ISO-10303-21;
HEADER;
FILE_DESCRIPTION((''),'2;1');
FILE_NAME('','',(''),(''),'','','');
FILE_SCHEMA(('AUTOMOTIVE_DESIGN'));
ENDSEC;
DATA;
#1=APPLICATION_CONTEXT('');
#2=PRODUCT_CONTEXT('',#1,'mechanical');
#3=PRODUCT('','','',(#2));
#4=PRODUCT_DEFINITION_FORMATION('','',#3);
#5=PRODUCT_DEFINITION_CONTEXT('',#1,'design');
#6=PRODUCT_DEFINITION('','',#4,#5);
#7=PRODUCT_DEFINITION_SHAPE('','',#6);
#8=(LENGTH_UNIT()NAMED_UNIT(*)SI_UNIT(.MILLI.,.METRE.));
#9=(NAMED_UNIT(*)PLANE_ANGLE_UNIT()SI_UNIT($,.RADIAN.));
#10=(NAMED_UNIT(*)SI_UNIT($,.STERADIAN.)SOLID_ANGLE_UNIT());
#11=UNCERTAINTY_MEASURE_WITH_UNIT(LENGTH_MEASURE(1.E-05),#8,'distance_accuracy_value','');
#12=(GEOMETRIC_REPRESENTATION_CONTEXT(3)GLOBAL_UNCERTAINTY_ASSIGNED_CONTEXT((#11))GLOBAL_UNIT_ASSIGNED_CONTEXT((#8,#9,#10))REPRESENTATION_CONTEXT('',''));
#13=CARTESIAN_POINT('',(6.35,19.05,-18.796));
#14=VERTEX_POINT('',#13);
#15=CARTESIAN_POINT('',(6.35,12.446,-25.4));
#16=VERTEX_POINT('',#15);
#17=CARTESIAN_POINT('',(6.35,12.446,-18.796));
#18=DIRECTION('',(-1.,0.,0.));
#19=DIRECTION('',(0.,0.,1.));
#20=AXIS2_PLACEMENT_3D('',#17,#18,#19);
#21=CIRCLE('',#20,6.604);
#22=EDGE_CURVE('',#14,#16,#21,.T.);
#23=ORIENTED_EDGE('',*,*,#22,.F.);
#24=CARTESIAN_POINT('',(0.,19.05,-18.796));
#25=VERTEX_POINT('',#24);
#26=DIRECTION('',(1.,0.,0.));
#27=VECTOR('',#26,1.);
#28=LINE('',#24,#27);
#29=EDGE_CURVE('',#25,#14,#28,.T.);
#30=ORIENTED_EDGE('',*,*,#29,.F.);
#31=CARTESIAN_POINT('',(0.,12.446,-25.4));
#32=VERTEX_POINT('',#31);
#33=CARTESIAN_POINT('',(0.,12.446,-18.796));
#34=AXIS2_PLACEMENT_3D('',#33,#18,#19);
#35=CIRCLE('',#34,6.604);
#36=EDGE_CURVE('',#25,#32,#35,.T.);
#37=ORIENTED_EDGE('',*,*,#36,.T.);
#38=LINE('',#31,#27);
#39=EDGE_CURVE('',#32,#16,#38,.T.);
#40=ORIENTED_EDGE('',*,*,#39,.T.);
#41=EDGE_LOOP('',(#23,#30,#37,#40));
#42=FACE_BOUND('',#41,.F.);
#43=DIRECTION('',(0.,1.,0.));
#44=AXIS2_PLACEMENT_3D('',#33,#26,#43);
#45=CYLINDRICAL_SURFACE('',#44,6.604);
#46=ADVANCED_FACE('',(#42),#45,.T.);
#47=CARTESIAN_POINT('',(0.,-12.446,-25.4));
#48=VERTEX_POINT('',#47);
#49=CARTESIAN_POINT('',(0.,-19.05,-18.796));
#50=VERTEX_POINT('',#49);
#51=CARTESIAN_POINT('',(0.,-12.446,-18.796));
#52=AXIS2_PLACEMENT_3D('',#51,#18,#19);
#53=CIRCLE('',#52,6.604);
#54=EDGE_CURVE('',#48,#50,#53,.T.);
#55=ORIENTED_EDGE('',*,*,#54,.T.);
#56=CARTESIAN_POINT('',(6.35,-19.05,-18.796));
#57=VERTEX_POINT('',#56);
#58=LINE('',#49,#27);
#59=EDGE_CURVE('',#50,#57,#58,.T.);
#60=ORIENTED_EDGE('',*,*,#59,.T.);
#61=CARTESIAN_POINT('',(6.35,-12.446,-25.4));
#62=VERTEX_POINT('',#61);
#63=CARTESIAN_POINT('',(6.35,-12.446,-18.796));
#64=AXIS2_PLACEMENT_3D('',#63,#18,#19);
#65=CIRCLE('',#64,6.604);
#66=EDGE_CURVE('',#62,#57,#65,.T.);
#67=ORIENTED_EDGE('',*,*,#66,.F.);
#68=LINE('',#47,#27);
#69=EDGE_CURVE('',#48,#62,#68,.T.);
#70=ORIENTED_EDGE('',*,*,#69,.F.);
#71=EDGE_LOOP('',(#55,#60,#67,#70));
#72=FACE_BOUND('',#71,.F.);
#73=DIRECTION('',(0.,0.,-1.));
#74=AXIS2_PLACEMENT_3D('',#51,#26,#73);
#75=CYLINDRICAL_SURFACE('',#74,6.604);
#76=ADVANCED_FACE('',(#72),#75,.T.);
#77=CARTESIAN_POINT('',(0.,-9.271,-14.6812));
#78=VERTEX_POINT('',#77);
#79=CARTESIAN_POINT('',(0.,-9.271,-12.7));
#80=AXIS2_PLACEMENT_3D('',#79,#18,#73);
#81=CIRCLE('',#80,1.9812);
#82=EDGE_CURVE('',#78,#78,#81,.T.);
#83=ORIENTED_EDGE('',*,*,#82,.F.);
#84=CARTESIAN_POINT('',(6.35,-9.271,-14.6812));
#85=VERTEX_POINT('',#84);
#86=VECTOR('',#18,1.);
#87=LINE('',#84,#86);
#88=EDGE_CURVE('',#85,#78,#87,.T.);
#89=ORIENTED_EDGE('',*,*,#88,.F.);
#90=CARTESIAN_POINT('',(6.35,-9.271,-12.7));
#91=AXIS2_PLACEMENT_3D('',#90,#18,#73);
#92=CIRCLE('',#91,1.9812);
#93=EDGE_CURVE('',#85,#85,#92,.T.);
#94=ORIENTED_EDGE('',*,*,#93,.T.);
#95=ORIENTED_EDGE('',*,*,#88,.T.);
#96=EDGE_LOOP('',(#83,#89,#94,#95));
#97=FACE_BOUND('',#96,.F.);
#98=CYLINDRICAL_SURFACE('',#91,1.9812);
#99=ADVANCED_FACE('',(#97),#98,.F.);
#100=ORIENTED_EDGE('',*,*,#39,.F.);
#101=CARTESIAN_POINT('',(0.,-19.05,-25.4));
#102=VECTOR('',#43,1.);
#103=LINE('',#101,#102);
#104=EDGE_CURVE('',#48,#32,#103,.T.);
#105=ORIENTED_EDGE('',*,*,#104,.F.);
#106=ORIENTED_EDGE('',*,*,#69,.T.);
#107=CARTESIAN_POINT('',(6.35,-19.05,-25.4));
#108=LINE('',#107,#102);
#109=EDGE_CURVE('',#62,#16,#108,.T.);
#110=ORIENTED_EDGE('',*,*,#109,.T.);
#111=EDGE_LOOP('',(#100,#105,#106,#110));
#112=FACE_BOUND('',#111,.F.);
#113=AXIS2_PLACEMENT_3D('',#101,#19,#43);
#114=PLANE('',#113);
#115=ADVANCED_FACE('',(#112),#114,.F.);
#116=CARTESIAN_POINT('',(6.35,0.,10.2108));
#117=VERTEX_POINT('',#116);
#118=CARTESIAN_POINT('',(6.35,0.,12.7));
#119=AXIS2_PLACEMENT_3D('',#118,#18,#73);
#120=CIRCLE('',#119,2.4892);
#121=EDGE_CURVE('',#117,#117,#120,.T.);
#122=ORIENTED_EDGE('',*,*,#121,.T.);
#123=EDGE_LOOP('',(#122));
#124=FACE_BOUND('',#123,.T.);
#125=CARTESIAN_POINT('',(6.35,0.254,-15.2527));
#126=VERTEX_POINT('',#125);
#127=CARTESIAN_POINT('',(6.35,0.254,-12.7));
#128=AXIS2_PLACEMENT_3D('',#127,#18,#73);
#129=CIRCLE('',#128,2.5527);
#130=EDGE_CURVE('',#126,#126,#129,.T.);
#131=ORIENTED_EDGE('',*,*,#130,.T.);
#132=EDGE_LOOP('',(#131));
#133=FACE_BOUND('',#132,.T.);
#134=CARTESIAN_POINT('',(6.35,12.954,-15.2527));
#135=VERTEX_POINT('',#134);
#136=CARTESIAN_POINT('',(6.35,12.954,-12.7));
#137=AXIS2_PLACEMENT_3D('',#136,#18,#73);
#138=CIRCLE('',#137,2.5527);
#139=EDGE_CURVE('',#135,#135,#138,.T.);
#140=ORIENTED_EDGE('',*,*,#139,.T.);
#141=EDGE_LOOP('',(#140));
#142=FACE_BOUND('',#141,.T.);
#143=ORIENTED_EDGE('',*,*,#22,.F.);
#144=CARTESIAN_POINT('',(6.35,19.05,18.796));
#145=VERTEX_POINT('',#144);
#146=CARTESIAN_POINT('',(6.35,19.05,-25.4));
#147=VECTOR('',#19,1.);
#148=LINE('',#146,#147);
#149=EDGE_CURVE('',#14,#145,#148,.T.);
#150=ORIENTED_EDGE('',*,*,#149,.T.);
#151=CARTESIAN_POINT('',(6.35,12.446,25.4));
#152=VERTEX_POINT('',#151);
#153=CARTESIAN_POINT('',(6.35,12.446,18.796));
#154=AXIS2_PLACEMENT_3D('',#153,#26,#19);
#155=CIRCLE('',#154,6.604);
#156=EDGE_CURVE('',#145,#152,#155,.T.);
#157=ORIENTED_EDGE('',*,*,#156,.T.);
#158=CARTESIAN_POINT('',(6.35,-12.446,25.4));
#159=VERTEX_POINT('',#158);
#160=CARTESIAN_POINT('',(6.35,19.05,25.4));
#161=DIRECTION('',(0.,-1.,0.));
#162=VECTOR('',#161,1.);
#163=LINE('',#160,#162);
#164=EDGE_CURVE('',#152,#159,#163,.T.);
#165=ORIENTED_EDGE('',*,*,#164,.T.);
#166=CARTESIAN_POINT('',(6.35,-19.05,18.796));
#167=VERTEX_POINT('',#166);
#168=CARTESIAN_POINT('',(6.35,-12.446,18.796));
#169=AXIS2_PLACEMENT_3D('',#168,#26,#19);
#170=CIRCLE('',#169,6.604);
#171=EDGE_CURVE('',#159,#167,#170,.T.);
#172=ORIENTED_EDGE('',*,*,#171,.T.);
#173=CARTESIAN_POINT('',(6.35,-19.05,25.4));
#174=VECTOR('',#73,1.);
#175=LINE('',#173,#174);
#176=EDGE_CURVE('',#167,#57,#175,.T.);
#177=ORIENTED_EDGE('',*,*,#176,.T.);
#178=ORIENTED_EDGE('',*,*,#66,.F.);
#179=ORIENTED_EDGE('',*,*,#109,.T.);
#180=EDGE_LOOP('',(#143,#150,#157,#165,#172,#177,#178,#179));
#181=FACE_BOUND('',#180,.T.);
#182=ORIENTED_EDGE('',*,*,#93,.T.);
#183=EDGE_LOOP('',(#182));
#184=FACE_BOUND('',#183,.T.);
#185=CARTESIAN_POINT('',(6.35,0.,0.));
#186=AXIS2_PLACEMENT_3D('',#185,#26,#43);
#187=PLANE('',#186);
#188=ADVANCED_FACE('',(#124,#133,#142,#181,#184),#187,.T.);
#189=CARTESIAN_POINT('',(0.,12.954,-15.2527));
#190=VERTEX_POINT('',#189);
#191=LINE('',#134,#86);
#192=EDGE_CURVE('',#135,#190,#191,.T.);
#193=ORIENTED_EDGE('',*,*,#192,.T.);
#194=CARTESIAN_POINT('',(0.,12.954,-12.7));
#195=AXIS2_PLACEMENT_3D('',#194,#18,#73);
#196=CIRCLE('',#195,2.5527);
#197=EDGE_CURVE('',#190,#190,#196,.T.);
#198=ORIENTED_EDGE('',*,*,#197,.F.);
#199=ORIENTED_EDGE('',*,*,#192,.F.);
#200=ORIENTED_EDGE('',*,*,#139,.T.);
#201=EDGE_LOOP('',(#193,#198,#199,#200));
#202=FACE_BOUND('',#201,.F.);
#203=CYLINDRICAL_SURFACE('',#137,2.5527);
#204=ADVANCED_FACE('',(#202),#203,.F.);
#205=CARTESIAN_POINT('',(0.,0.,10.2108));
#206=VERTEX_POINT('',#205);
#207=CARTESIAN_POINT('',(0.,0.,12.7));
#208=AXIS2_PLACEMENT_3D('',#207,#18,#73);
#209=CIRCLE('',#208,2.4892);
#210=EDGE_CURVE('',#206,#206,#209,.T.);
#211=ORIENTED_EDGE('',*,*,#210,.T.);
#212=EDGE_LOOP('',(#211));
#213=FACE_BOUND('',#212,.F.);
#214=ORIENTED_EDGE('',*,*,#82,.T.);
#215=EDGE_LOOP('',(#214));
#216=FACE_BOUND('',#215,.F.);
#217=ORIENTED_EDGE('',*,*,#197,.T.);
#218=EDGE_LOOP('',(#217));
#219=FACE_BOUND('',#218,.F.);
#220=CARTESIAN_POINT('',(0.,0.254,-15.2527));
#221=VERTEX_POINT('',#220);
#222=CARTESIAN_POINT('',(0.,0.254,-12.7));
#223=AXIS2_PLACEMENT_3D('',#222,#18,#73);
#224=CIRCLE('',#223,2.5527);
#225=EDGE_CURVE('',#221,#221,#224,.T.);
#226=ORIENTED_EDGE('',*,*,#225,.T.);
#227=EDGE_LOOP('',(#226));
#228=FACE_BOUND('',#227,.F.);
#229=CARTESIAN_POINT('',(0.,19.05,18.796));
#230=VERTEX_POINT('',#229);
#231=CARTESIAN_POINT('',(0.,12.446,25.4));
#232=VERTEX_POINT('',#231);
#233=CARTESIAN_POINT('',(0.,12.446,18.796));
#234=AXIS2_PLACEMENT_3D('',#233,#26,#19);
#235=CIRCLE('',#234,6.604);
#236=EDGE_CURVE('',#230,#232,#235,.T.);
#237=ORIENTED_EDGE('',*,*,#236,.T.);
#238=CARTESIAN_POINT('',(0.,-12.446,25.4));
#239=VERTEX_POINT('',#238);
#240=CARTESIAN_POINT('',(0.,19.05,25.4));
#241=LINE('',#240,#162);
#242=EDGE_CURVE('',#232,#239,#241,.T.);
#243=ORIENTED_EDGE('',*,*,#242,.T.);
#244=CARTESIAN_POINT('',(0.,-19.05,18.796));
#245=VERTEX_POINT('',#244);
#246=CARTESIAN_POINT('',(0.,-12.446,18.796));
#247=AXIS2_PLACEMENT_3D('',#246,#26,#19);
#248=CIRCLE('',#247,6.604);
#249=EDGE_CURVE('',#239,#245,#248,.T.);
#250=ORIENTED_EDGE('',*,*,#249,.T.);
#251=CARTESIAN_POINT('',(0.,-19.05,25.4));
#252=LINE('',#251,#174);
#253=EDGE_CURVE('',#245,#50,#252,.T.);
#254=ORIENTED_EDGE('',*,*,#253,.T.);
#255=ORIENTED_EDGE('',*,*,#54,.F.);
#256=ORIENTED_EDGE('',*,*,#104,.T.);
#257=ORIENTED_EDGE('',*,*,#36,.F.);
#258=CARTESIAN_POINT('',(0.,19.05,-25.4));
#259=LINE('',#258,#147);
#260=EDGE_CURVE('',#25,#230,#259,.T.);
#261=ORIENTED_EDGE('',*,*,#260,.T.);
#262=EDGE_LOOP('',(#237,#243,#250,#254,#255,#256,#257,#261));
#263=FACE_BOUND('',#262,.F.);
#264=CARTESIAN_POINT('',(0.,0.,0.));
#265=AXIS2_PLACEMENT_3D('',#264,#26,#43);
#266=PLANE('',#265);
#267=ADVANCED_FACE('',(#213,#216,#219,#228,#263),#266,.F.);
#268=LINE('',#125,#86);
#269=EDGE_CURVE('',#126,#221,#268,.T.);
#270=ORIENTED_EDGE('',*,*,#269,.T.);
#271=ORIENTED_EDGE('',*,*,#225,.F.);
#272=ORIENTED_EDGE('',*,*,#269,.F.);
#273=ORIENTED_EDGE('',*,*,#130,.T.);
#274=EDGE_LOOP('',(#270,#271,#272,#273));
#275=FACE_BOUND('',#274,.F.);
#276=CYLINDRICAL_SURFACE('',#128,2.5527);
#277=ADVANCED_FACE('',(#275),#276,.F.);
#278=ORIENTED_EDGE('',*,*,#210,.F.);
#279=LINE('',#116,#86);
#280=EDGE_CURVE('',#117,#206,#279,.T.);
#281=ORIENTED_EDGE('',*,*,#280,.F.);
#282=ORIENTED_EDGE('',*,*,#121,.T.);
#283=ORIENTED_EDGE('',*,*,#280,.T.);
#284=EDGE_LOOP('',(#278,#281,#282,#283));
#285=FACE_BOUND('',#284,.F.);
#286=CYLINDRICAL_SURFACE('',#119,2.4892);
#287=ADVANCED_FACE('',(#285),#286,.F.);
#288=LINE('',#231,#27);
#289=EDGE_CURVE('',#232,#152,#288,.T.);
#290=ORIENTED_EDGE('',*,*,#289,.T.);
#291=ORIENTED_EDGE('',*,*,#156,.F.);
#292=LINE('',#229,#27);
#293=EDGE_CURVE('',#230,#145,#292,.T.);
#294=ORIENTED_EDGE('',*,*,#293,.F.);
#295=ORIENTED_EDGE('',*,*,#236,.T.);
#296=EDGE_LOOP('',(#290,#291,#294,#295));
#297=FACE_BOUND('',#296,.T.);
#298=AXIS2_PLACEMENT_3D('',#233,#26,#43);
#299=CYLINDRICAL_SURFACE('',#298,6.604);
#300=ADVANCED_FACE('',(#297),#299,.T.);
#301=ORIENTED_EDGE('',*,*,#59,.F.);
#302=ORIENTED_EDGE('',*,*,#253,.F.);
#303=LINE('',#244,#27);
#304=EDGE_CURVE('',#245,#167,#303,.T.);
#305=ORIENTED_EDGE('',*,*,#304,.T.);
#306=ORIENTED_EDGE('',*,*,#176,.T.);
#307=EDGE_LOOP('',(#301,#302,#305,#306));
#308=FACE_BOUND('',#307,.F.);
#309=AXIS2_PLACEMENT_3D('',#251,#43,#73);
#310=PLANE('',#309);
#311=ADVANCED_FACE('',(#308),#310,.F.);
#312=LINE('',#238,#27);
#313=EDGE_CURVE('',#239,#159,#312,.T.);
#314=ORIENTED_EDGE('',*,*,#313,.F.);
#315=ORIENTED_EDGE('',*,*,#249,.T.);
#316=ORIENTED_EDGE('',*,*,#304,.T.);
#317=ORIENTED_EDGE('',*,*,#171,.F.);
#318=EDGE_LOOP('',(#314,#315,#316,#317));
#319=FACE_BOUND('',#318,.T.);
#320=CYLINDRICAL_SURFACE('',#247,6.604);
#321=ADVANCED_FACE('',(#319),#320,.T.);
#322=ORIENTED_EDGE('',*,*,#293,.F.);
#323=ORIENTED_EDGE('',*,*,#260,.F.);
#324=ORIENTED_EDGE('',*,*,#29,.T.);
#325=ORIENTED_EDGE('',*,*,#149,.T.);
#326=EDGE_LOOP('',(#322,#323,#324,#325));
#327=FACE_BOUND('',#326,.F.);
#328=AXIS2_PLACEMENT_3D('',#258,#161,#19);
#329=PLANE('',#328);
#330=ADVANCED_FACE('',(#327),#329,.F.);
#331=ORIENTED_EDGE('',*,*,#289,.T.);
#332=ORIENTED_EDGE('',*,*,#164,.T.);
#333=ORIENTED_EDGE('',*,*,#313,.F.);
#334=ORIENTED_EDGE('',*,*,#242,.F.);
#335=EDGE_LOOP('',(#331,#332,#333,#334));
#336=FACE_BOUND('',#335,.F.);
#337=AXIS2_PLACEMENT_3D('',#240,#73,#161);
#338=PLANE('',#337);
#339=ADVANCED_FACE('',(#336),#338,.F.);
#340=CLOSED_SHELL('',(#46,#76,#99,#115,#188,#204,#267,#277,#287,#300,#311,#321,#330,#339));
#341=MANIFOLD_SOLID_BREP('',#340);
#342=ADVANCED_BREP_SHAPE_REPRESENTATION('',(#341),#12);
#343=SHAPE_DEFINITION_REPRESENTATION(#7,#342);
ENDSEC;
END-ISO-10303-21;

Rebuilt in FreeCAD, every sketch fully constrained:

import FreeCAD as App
import Part
import Sketcher
from FreeCAD import Vector
Q = App.Units.Quantity


def edges_at(feature, points):
    """Names of the edges that pass closest to the given points."""
    edges = feature.Shape.Edges
    near = lambda p: min(range(len(edges)), key=lambda i: edges[i].distToShape(Part.Vertex(*p))[0])
    return sorted({f"Edge{near(p) + 1}" for p in points})


def add_polygon(sketch, points):
    """Adds a closed chain of lines whose ends are joined by coincident constraints."""
    first, n = sketch.GeometryCount, len(points)
    for a, b in zip(points, points[1:] + points[:1]):
        sketch.addGeometry(Part.LineSegment(App.Vector(*a, 0), App.Vector(*b, 0)), False)
    for i in range(n):
        sketch.addConstraint(Sketcher.Constraint("Coincident", first + i, 2, first + (i + 1) % n, 1))

doc = App.newDocument("Part")
body = doc.addObject("PartDesign::Body", "Body")

sketch1 = body.newObject("Sketcher::SketchObject", "Sketch")
sketch1.AttachmentSupport = (doc.getObject("YZ_Plane"), [""])
sketch1.MapMode = "FlatFace"
add_polygon(sketch1, [(19.05, -25.4), (19.05, 25.4), (-19.05, 25.4), (-19.05, -25.4)])
sketch1.addConstraint([
    Sketcher.Constraint("Vertical", 0),
    Sketcher.Constraint("Horizontal", 1),
    Sketcher.Constraint("Vertical", 2),
    Sketcher.Constraint("Horizontal", 3),
    Sketcher.Constraint("Symmetric", 0, 2, 2, 2, -1, 1),
    Sketcher.Constraint("DistanceY", 0, 1, 0, 2, Q("2 in")),
    Sketcher.Constraint("DistanceX", 1, 2, 1, 1, Q("1.5 in")),
])
pad1 = body.newObject("PartDesign::Pad", "Pad")
pad1.Profile = sketch1
pad1.Length = Q("0.25 in")

sketch2 = body.newObject("Sketcher::SketchObject", "Sketch001")
sketch2.AttachmentSupport = (doc.getObject("YZ_Plane"), [""])
sketch2.MapMode = "FlatFace"
sketch2.AttachmentOffset = App.Placement(Vector(0, 0, 0.25 * 25.4), App.Rotation())
sketch2.addGeometry([
    Part.Circle(Vector(12.954, -12.7, 0), Vector(0, 0, 1), 2.5527),
    Part.Circle(Vector(0.254, -12.7, 0), Vector(0, 0, 1), 2.5527),
], False)
sketch2.addConstraint([
    Sketcher.Constraint("Equal", 0, 1),
    Sketcher.Constraint("Horizontal", 0, 3, 1, 3),
    Sketcher.Constraint("Diameter", 0, Q("0.201 in")),
    Sketcher.Constraint("DistanceY", 0, 3, -1, 1, Q("0.5 in")),
    Sketcher.Constraint("DistanceX", 1, 3, 0, 3, Q("0.5 in")),
    Sketcher.Constraint("DistanceX", -1, 1, 0, 3, Q("0.51 in")),
])
doc.recompute()
hole = body.newObject("PartDesign::Hole", "Hole")
hole.Profile = sketch2
hole.ThreadType = "None"
hole.Diameter = Q("0.201 in")
hole.DepthType = "ThroughAll"

sketch3 = body.newObject("Sketcher::SketchObject", "Sketch002")
sketch3.AttachmentSupport = (doc.getObject("YZ_Plane"), [""])
sketch3.MapMode = "FlatFace"
sketch3.AttachmentOffset = App.Placement(Vector(0, 0, 0.25 * 25.4), App.Rotation())
sketch3.addGeometry(Part.Circle(Vector(-9.271, -12.7, 0), Vector(0, 0, 1), 1.9812), False)
sketch3.addConstraint([
    Sketcher.Constraint("Diameter", 0, Q("0.156 in")),
    Sketcher.Constraint("DistanceY", 0, 3, -1, 1, Q("0.5 in")),
    Sketcher.Constraint("DistanceX", 0, 3, -1, 1, Q("0.365 in")),
])
doc.recompute()
hole2 = body.newObject("PartDesign::Hole", "Hole001")
hole2.Profile = sketch3
hole2.ThreadType = "None"
hole2.Diameter = Q("0.156 in")
hole2.DepthType = "ThroughAll"

sketch4 = body.newObject("Sketcher::SketchObject", "Sketch003")
sketch4.AttachmentSupport = (doc.getObject("YZ_Plane"), [""])
sketch4.MapMode = "FlatFace"
sketch4.AttachmentOffset = App.Placement(Vector(0, 0, 0.25 * 25.4), App.Rotation())
sketch4.addGeometry(Part.Circle(Vector(0, 12.7, 0), Vector(0, 0, 1), 2.4892), False)
sketch4.addConstraint([
    Sketcher.Constraint("PointOnObject", 0, 3, -2),
    Sketcher.Constraint("Diameter", 0, Q("0.196 in")),
    Sketcher.Constraint("DistanceY", -1, 1, 0, 3, Q("0.5 in")),
])
doc.recompute()
hole3 = body.newObject("PartDesign::Hole", "Hole002")
hole3.Profile = sketch4
hole3.ThreadType = "None"
hole3.Diameter = Q("0.196 in")
hole3.DepthType = "ThroughAll"
doc.recompute()

fillet = body.newObject("PartDesign::Fillet", "Fillet")
fillet.Base = (hole3, edges_at(hole3, [
    (3.175, 19.05, 25.4),
    (3.175, 19.05, -25.4),
    (3.175, -19.05, -25.4),
    (3.175, -19.05, 25.4),
]))
fillet.Radius = Q("0.26 in")

doc.recompute()
